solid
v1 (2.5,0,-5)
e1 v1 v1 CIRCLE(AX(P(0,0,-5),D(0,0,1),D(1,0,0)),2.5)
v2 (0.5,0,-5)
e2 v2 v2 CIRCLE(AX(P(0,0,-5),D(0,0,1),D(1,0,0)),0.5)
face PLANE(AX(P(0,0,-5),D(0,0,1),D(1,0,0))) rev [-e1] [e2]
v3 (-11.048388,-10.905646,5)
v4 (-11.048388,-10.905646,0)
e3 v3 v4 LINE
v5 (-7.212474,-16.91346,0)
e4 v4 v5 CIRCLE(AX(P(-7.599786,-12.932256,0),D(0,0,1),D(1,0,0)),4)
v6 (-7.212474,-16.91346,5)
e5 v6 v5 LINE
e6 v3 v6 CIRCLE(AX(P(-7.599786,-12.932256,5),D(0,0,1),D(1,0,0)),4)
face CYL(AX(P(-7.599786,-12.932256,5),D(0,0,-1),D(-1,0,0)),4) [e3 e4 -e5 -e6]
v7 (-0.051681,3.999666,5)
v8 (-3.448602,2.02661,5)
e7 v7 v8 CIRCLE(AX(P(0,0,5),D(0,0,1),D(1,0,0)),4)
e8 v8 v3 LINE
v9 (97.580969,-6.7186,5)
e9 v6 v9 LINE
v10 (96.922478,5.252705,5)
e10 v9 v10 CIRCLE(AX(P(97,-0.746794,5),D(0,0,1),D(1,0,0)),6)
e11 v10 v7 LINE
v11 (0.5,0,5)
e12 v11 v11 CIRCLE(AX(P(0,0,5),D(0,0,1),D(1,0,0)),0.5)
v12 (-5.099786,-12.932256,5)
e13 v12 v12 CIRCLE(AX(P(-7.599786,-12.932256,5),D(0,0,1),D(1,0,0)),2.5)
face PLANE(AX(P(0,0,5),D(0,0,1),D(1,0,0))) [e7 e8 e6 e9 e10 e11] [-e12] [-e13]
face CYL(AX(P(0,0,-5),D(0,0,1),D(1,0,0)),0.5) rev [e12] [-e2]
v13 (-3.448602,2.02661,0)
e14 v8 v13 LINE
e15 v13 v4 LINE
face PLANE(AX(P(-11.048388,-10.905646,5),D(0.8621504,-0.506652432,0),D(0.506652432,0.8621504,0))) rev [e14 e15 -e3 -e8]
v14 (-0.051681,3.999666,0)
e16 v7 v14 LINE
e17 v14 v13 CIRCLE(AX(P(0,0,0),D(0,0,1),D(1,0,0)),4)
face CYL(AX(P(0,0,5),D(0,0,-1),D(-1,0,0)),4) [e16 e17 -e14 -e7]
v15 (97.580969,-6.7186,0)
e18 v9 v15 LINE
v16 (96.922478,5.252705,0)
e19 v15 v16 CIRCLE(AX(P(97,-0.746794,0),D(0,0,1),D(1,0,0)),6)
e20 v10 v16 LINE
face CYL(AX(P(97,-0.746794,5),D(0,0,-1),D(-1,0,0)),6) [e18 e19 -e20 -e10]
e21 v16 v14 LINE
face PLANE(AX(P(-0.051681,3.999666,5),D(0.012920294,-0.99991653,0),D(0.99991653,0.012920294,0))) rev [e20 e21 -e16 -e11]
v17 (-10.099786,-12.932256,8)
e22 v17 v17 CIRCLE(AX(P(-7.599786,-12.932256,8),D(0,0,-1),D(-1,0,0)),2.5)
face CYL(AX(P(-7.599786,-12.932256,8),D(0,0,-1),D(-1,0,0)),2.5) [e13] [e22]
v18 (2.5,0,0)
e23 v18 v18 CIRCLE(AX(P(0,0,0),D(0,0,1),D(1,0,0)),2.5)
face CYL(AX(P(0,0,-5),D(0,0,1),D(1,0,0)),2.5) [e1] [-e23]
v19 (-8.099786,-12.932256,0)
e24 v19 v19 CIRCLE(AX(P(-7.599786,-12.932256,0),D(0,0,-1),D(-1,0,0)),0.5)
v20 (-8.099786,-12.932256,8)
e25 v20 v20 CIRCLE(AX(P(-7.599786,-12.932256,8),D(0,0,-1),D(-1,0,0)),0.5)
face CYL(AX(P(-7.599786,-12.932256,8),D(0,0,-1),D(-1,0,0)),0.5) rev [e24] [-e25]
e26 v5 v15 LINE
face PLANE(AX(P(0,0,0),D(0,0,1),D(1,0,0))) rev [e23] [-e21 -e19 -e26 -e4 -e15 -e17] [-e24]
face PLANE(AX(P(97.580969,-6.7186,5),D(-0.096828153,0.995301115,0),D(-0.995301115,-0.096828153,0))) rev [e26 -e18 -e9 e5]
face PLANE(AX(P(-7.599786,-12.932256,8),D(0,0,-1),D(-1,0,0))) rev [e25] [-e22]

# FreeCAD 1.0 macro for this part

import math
import FreeCAD as App
import Part
import Sketcher

V = App.Vector
Q = App.Units.Quantity

doc = App.newDocument("Part")
body = doc.addObject("PartDesign::Body", "Body")

# Sketch on XY plane
sketch1 = body.newObject("Sketcher::SketchObject", "Sketch")
sketch1.AttachmentSupport = (doc.getObject("XY_Plane"), [""])
sketch1.MapMode = "FlatFace"
sketch1.addGeometry([
    Part.LineSegment(V(-3.4, 2, 0), V(-11, -10.9, 0)),  # 0
    Part.ArcOfCircle(Part.Circle(V(-7.6, -12.9, 0), V(0, 0, 1), 4), math.radians(150), math.radians(276)),  # 1
    Part.LineSegment(V(-7.2, -16.9, 0), V(97.6, -6.7, 0)),  # 2
    Part.ArcOfCircle(Part.Circle(V(97, -0.7, 0), V(0, 0, 1), 6), math.radians(-84), math.radians(91)),  # 3
    Part.LineSegment(V(96.9, 5.3, 0), V(-0.1, 4, 0)),  # 4
    Part.ArcOfCircle(Part.Circle(V(0, 0, 0), V(0, 0, 1), 4), math.radians(91), math.radians(150)),  # 5
    Part.Circle(V(-7.6, -12.9, 0), V(0, 0, 1), 2.5),  # 6
    Part.Circle(V(0, 0, 0), V(0, 0, 1), 2.5),  # 7
], False)
sketch1.addConstraint([
    Sketcher.Constraint("Tangent", 0, 2, 1, 1),
    Sketcher.Constraint("Tangent", 1, 2, 2, 1),
    Sketcher.Constraint("Tangent", 2, 2, 3, 1),
    Sketcher.Constraint("Tangent", 3, 2, 4, 1),
    Sketcher.Constraint("Tangent", 4, 2, 5, 1),
    Sketcher.Constraint("Tangent", 5, 2, 0, 1),
    Sketcher.Constraint("Coincident", 5, 3, -1, 1),
    Sketcher.Constraint("Coincident", 7, 3, -1, 1),
    Sketcher.Constraint("Coincident", 6, 3, 1, 3),
    Sketcher.Constraint("Equal", 1, 5),
    Sketcher.Constraint("Equal", 6, 7),
    Sketcher.Constraint("Diameter", 6, Q("5 mm")),
    Sketcher.Constraint("Radius", 1, Q("4 mm")),
    Sketcher.Constraint("Radius", 3, Q("6 mm")),
    Sketcher.Constraint("Distance", 0, Q("15 mm")),
    Sketcher.Constraint("DistanceX", -1, 1, 3, 3, Q("97 mm")),
    Sketcher.Constraint("DistanceY", 2, 2, -1, 1, Q("6.7186 mm")),
    Sketcher.Constraint("DistanceX", 5, 2, -1, 1, Q("3.448602 mm")),
])
pad1 = body.newObject("PartDesign::Pad", "Pad")
pad1.Profile = sketch1
pad1.Length = 5

# Sketch on XY plane
sketch2 = body.newObject("Sketcher::SketchObject", "Sketch001")
sketch2.AttachmentSupport = (doc.getObject("XY_Plane"), [""])
sketch2.MapMode = "FlatFace"
sketch2.AttachmentOffset = App.Placement(V(0, 0, -5), App.Rotation())
sketch2.addGeometry([
    Part.Circle(V(0, 0, 0), V(0, 0, 1), 2.5),
    Part.Circle(V(0, 0, 0), V(0, 0, 1), 0.5),
], False)
sketch2.addConstraint([
    Sketcher.Constraint("Coincident", 0, 3, -1, 1),
    Sketcher.Constraint("Coincident", 1, 3, -1, 1),
    Sketcher.Constraint("Diameter", 0, Q("5 mm")),
    Sketcher.Constraint("Diameter", 1, Q("1 mm")),
])
pad2 = body.newObject("PartDesign::Pad", "Pad001")
pad2.Profile = sketch2
pad2.Length = 10

# Sketch on XY plane
sketch3 = body.newObject("Sketcher::SketchObject", "Sketch002")
sketch3.AttachmentSupport = (doc.getObject("XY_Plane"), [""])
sketch3.MapMode = "FlatFace"
sketch3.addGeometry([
    Part.Circle(V(-7.6, -12.9, 0), V(0, 0, 1), 2.5),
    Part.Circle(V(-7.6, -12.9, 0), V(0, 0, 1), 0.5),
], False)
sketch3.addConstraint([
    Sketcher.Constraint("Coincident", 1, 3, 0, 3),
    Sketcher.Constraint("Diameter", 0, Q("5 mm")),
    Sketcher.Constraint("Diameter", 1, Q("1 mm")),
    Sketcher.Constraint("DistanceX", 0, 3, -1, 1, Q("7.599786 mm")),
    Sketcher.Constraint("DistanceY", 0, 3, -1, 1, Q("12.932256 mm")),
])
pad3 = body.newObject("PartDesign::Pad", "Pad002")
pad3.Profile = sketch3
pad3.Length = 8

doc.recompute()
